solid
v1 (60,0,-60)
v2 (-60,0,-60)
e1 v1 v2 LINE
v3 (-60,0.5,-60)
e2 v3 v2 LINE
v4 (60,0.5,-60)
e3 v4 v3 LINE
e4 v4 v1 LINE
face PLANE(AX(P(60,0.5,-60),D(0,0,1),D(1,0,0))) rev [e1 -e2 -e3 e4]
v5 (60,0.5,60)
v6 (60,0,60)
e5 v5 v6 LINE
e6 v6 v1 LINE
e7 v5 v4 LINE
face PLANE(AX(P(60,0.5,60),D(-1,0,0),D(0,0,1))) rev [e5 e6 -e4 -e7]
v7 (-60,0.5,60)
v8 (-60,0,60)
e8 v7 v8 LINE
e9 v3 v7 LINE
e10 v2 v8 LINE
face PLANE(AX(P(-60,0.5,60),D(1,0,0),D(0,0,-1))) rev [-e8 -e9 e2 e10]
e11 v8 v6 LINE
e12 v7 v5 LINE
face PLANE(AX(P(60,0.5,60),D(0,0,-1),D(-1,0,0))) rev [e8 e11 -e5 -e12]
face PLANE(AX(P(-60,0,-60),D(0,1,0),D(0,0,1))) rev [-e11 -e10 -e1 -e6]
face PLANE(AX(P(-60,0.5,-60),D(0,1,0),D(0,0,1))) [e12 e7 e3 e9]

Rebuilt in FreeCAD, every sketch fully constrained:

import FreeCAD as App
import Part
import Sketcher
Q = App.Units.Quantity

doc = App.newDocument("Part")
body = doc.addObject("PartDesign::Body", "Body")

sketch1 = doc.addObject("Sketcher::SketchObject", "Sketch")
body.addObject(sketch1)
sketch1.AttachmentSupport = (doc.XZ_Plane, [""])
sketch1.MapMode = "FlatFace"
sketch1.addGeometry(Part.LineSegment(App.Vector(-60, -60, 0), App.Vector(-60, 60, 0)), False)
sketch1.addGeometry(Part.LineSegment(App.Vector(-60, 60, 0), App.Vector(60, 60, 0)), False)
sketch1.addGeometry(Part.LineSegment(App.Vector(60, 60, 0), App.Vector(60, -60, 0)), False)
sketch1.addGeometry(Part.LineSegment(App.Vector(60, -60, 0), App.Vector(-60, -60, 0)), False)
sketch1.addConstraint(Sketcher.Constraint("Coincident", 0, 2, 1, 1))
sketch1.addConstraint(Sketcher.Constraint("Coincident", 1, 2, 2, 1))
sketch1.addConstraint(Sketcher.Constraint("Coincident", 2, 2, 3, 1))
sketch1.addConstraint(Sketcher.Constraint("Coincident", 3, 2, 0, 1))
sketch1.addConstraint(Sketcher.Constraint("Vertical", 0))
sketch1.addConstraint(Sketcher.Constraint("Horizontal", 1))
sketch1.addConstraint(Sketcher.Constraint("Vertical", 2))
sketch1.addConstraint(Sketcher.Constraint("Horizontal", 3))
sketch1.addConstraint(Sketcher.Constraint("Symmetric", 0, 2, 2, 2, -1, 1))
sketch1.addConstraint(Sketcher.Constraint("Equal", 3, 0))
sketch1.addConstraint(Sketcher.Constraint("DistanceX", 1, 1, 1, 2, Q("120 mm")))
pad1 = doc.addObject("PartDesign::Pad", "Pad")
body.addObject(pad1)
pad1.Profile = sketch1
pad1.Length = 0.5
pad1.Reversed = True

doc.recompute()
